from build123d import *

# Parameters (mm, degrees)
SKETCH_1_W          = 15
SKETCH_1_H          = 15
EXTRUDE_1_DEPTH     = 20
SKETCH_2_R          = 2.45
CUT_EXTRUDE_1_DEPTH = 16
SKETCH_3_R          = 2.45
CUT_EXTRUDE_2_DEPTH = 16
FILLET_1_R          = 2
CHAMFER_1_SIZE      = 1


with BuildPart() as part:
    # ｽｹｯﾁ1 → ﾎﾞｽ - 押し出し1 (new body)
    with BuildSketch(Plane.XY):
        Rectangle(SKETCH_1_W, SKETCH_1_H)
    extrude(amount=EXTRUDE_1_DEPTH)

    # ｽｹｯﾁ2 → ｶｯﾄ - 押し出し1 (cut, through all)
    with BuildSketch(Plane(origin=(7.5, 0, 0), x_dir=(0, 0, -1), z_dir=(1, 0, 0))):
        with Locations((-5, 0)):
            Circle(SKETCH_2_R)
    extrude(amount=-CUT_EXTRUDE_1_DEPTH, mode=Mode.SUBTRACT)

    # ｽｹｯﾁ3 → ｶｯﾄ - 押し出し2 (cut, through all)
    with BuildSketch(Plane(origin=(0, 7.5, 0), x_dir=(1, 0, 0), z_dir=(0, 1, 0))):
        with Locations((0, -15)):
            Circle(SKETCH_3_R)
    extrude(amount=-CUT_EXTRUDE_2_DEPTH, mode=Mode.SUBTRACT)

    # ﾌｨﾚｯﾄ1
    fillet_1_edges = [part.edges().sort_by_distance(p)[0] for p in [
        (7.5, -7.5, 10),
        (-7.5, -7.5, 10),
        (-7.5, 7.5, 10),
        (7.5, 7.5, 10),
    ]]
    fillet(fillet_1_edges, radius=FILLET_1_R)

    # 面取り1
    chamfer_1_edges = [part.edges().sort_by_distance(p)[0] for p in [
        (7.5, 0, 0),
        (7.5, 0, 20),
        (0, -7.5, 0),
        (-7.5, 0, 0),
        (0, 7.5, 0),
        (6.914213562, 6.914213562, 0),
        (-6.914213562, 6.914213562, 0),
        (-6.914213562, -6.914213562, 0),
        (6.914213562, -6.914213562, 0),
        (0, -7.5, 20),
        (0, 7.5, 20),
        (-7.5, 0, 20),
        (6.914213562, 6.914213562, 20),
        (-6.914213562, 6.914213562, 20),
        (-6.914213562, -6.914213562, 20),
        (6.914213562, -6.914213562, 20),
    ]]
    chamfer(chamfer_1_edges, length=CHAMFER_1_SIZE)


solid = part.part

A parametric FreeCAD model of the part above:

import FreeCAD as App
import Part
import Sketcher
Q = App.Units.Quantity


def edges_at(feature, points):
    """Names of the edges that pass closest to the given points."""
    edges = feature.Shape.Edges
    near = lambda p: min(range(len(edges)), key=lambda i: edges[i].distToShape(Part.Vertex(*p))[0])
    return sorted({f"Edge{near(p) + 1}" for p in points})

doc = App.newDocument("Part")
body = doc.addObject("PartDesign::Body", "Body")

sketch1 = body.newObject("Sketcher::SketchObject", "Sketch")
sketch1.AttachmentSupport = (doc.getObject("XY_Plane"), [""])
sketch1.MapMode = "FlatFace"
sketch1.addGeometry(Part.LineSegment(App.Vector(-8, 8, 0), App.Vector(-8, -8, 0)), False)
sketch1.addGeometry(Part.LineSegment(App.Vector(-8, -8, 0), App.Vector(8, -8, 0)), False)
sketch1.addGeometry(Part.LineSegment(App.Vector(8, -8, 0), App.Vector(8, 8, 0)), False)
sketch1.addGeometry(Part.LineSegment(App.Vector(8, 8, 0), App.Vector(-8, 8, 0)), False)
sketch1.addConstraint(Sketcher.Constraint("Coincident", 0, 2, 1, 1))
sketch1.addConstraint(Sketcher.Constraint("Coincident", 1, 2, 2, 1))
sketch1.addConstraint(Sketcher.Constraint("Coincident", 2, 2, 3, 1))
sketch1.addConstraint(Sketcher.Constraint("Coincident", 3, 2, 0, 1))
sketch1.addConstraint(Sketcher.Constraint("Vertical", 0))
sketch1.addConstraint(Sketcher.Constraint("Horizontal", 1))
sketch1.addConstraint(Sketcher.Constraint("Vertical", 2))
sketch1.addConstraint(Sketcher.Constraint("Horizontal", 3))
sketch1.addConstraint(Sketcher.Constraint("Symmetric", 0, 2, 2, 2, -1, 1))
sketch1.addConstraint(Sketcher.Constraint("Equal", 3, 0))
sketch1.addConstraint(Sketcher.Constraint("DistanceX", 1, 1, 1, 2, Q("15 mm")))
pad1 = body.newObject("PartDesign::Pad", "Pad")
pad1.Profile = sketch1
pad1.Length = 20

sketch2 = body.newObject("Sketcher::SketchObject", "Sketch001")
sketch2.AttachmentSupport = (doc.getObject("YZ_Plane"), [""])
sketch2.MapMode = "FlatFace"
sketch2.AttachmentOffset = App.Placement(App.Vector(0, 0, 7.5), App.Rotation())
sketch2.addGeometry(Part.Circle(App.Vector(0, 5, 0), App.Vector(0, 0, 1), 2.5), False)
sketch2.addConstraint(Sketcher.Constraint("PointOnObject", 0, 3, -2))
sketch2.addConstraint(Sketcher.Constraint("Diameter", 0, Q("4.9 mm")))
sketch2.addConstraint(Sketcher.Constraint("DistanceY", -1, 1, 0, 3, Q("5 mm")))
pocket1 = body.newObject("PartDesign::Pocket", "Pocket")
pocket1.Profile = sketch2
pocket1.Type = "ThroughAll"

sketch3 = body.newObject("Sketcher::SketchObject", "Sketch002")
sketch3.AttachmentSupport = (doc.getObject("XZ_Plane"), [""])
sketch3.MapMode = "FlatFace"
sketch3.AttachmentOffset = App.Placement(App.Vector(0, 0, -7.5), App.Rotation())
sketch3.addGeometry(Part.Circle(App.Vector(0, 15, 0), App.Vector(0, 0, 1), 2.5), False)
sketch3.addConstraint(Sketcher.Constraint("PointOnObject", 0, 3, -2))
sketch3.addConstraint(Sketcher.Constraint("Diameter", 0, Q("4.9 mm")))
sketch3.addConstraint(Sketcher.Constraint("DistanceY", -1, 1, 0, 3, Q("15 mm")))
pocket2 = body.newObject("PartDesign::Pocket", "Pocket001")
pocket2.Profile = sketch3
pocket2.Type = "ThroughAll"
pocket2.Reversed = True
doc.recompute()

fillet = body.newObject("PartDesign::Fillet", "Fillet")
fillet.Base = (pocket2, edges_at(pocket2, [
    (7.5, -7.5, 10),
    (-7.5, -7.5, 10),
    (-7.5, 7.5, 10),
    (7.5, 7.5, 10),
]))
fillet.Radius = 2
doc.recompute()

chamfer = body.newObject("PartDesign::Chamfer", "Chamfer")
chamfer.Base = (fillet, edges_at(fillet, [
    (7.5, 0, 0),
    (7.5, 0, 20),
    (0, -7.5, 0),
    (-7.5, 0, 0),
    (0, 7.5, 0),
    (6.914, 6.914, 0),
    (-6.914, 6.914, 0),
    (-6.914, -6.914, 0),
    (6.914, -6.914, 0),
    (0, -7.5, 20),
    (0, 7.5, 20),
    (-7.5, 0, 20),
    (6.914, 6.914, 20),
    (-6.914, 6.914, 20),
    (-6.914, -6.914, 20),
    (6.914, -6.914, 20),
]))
chamfer.Size = 1

doc.recompute()
